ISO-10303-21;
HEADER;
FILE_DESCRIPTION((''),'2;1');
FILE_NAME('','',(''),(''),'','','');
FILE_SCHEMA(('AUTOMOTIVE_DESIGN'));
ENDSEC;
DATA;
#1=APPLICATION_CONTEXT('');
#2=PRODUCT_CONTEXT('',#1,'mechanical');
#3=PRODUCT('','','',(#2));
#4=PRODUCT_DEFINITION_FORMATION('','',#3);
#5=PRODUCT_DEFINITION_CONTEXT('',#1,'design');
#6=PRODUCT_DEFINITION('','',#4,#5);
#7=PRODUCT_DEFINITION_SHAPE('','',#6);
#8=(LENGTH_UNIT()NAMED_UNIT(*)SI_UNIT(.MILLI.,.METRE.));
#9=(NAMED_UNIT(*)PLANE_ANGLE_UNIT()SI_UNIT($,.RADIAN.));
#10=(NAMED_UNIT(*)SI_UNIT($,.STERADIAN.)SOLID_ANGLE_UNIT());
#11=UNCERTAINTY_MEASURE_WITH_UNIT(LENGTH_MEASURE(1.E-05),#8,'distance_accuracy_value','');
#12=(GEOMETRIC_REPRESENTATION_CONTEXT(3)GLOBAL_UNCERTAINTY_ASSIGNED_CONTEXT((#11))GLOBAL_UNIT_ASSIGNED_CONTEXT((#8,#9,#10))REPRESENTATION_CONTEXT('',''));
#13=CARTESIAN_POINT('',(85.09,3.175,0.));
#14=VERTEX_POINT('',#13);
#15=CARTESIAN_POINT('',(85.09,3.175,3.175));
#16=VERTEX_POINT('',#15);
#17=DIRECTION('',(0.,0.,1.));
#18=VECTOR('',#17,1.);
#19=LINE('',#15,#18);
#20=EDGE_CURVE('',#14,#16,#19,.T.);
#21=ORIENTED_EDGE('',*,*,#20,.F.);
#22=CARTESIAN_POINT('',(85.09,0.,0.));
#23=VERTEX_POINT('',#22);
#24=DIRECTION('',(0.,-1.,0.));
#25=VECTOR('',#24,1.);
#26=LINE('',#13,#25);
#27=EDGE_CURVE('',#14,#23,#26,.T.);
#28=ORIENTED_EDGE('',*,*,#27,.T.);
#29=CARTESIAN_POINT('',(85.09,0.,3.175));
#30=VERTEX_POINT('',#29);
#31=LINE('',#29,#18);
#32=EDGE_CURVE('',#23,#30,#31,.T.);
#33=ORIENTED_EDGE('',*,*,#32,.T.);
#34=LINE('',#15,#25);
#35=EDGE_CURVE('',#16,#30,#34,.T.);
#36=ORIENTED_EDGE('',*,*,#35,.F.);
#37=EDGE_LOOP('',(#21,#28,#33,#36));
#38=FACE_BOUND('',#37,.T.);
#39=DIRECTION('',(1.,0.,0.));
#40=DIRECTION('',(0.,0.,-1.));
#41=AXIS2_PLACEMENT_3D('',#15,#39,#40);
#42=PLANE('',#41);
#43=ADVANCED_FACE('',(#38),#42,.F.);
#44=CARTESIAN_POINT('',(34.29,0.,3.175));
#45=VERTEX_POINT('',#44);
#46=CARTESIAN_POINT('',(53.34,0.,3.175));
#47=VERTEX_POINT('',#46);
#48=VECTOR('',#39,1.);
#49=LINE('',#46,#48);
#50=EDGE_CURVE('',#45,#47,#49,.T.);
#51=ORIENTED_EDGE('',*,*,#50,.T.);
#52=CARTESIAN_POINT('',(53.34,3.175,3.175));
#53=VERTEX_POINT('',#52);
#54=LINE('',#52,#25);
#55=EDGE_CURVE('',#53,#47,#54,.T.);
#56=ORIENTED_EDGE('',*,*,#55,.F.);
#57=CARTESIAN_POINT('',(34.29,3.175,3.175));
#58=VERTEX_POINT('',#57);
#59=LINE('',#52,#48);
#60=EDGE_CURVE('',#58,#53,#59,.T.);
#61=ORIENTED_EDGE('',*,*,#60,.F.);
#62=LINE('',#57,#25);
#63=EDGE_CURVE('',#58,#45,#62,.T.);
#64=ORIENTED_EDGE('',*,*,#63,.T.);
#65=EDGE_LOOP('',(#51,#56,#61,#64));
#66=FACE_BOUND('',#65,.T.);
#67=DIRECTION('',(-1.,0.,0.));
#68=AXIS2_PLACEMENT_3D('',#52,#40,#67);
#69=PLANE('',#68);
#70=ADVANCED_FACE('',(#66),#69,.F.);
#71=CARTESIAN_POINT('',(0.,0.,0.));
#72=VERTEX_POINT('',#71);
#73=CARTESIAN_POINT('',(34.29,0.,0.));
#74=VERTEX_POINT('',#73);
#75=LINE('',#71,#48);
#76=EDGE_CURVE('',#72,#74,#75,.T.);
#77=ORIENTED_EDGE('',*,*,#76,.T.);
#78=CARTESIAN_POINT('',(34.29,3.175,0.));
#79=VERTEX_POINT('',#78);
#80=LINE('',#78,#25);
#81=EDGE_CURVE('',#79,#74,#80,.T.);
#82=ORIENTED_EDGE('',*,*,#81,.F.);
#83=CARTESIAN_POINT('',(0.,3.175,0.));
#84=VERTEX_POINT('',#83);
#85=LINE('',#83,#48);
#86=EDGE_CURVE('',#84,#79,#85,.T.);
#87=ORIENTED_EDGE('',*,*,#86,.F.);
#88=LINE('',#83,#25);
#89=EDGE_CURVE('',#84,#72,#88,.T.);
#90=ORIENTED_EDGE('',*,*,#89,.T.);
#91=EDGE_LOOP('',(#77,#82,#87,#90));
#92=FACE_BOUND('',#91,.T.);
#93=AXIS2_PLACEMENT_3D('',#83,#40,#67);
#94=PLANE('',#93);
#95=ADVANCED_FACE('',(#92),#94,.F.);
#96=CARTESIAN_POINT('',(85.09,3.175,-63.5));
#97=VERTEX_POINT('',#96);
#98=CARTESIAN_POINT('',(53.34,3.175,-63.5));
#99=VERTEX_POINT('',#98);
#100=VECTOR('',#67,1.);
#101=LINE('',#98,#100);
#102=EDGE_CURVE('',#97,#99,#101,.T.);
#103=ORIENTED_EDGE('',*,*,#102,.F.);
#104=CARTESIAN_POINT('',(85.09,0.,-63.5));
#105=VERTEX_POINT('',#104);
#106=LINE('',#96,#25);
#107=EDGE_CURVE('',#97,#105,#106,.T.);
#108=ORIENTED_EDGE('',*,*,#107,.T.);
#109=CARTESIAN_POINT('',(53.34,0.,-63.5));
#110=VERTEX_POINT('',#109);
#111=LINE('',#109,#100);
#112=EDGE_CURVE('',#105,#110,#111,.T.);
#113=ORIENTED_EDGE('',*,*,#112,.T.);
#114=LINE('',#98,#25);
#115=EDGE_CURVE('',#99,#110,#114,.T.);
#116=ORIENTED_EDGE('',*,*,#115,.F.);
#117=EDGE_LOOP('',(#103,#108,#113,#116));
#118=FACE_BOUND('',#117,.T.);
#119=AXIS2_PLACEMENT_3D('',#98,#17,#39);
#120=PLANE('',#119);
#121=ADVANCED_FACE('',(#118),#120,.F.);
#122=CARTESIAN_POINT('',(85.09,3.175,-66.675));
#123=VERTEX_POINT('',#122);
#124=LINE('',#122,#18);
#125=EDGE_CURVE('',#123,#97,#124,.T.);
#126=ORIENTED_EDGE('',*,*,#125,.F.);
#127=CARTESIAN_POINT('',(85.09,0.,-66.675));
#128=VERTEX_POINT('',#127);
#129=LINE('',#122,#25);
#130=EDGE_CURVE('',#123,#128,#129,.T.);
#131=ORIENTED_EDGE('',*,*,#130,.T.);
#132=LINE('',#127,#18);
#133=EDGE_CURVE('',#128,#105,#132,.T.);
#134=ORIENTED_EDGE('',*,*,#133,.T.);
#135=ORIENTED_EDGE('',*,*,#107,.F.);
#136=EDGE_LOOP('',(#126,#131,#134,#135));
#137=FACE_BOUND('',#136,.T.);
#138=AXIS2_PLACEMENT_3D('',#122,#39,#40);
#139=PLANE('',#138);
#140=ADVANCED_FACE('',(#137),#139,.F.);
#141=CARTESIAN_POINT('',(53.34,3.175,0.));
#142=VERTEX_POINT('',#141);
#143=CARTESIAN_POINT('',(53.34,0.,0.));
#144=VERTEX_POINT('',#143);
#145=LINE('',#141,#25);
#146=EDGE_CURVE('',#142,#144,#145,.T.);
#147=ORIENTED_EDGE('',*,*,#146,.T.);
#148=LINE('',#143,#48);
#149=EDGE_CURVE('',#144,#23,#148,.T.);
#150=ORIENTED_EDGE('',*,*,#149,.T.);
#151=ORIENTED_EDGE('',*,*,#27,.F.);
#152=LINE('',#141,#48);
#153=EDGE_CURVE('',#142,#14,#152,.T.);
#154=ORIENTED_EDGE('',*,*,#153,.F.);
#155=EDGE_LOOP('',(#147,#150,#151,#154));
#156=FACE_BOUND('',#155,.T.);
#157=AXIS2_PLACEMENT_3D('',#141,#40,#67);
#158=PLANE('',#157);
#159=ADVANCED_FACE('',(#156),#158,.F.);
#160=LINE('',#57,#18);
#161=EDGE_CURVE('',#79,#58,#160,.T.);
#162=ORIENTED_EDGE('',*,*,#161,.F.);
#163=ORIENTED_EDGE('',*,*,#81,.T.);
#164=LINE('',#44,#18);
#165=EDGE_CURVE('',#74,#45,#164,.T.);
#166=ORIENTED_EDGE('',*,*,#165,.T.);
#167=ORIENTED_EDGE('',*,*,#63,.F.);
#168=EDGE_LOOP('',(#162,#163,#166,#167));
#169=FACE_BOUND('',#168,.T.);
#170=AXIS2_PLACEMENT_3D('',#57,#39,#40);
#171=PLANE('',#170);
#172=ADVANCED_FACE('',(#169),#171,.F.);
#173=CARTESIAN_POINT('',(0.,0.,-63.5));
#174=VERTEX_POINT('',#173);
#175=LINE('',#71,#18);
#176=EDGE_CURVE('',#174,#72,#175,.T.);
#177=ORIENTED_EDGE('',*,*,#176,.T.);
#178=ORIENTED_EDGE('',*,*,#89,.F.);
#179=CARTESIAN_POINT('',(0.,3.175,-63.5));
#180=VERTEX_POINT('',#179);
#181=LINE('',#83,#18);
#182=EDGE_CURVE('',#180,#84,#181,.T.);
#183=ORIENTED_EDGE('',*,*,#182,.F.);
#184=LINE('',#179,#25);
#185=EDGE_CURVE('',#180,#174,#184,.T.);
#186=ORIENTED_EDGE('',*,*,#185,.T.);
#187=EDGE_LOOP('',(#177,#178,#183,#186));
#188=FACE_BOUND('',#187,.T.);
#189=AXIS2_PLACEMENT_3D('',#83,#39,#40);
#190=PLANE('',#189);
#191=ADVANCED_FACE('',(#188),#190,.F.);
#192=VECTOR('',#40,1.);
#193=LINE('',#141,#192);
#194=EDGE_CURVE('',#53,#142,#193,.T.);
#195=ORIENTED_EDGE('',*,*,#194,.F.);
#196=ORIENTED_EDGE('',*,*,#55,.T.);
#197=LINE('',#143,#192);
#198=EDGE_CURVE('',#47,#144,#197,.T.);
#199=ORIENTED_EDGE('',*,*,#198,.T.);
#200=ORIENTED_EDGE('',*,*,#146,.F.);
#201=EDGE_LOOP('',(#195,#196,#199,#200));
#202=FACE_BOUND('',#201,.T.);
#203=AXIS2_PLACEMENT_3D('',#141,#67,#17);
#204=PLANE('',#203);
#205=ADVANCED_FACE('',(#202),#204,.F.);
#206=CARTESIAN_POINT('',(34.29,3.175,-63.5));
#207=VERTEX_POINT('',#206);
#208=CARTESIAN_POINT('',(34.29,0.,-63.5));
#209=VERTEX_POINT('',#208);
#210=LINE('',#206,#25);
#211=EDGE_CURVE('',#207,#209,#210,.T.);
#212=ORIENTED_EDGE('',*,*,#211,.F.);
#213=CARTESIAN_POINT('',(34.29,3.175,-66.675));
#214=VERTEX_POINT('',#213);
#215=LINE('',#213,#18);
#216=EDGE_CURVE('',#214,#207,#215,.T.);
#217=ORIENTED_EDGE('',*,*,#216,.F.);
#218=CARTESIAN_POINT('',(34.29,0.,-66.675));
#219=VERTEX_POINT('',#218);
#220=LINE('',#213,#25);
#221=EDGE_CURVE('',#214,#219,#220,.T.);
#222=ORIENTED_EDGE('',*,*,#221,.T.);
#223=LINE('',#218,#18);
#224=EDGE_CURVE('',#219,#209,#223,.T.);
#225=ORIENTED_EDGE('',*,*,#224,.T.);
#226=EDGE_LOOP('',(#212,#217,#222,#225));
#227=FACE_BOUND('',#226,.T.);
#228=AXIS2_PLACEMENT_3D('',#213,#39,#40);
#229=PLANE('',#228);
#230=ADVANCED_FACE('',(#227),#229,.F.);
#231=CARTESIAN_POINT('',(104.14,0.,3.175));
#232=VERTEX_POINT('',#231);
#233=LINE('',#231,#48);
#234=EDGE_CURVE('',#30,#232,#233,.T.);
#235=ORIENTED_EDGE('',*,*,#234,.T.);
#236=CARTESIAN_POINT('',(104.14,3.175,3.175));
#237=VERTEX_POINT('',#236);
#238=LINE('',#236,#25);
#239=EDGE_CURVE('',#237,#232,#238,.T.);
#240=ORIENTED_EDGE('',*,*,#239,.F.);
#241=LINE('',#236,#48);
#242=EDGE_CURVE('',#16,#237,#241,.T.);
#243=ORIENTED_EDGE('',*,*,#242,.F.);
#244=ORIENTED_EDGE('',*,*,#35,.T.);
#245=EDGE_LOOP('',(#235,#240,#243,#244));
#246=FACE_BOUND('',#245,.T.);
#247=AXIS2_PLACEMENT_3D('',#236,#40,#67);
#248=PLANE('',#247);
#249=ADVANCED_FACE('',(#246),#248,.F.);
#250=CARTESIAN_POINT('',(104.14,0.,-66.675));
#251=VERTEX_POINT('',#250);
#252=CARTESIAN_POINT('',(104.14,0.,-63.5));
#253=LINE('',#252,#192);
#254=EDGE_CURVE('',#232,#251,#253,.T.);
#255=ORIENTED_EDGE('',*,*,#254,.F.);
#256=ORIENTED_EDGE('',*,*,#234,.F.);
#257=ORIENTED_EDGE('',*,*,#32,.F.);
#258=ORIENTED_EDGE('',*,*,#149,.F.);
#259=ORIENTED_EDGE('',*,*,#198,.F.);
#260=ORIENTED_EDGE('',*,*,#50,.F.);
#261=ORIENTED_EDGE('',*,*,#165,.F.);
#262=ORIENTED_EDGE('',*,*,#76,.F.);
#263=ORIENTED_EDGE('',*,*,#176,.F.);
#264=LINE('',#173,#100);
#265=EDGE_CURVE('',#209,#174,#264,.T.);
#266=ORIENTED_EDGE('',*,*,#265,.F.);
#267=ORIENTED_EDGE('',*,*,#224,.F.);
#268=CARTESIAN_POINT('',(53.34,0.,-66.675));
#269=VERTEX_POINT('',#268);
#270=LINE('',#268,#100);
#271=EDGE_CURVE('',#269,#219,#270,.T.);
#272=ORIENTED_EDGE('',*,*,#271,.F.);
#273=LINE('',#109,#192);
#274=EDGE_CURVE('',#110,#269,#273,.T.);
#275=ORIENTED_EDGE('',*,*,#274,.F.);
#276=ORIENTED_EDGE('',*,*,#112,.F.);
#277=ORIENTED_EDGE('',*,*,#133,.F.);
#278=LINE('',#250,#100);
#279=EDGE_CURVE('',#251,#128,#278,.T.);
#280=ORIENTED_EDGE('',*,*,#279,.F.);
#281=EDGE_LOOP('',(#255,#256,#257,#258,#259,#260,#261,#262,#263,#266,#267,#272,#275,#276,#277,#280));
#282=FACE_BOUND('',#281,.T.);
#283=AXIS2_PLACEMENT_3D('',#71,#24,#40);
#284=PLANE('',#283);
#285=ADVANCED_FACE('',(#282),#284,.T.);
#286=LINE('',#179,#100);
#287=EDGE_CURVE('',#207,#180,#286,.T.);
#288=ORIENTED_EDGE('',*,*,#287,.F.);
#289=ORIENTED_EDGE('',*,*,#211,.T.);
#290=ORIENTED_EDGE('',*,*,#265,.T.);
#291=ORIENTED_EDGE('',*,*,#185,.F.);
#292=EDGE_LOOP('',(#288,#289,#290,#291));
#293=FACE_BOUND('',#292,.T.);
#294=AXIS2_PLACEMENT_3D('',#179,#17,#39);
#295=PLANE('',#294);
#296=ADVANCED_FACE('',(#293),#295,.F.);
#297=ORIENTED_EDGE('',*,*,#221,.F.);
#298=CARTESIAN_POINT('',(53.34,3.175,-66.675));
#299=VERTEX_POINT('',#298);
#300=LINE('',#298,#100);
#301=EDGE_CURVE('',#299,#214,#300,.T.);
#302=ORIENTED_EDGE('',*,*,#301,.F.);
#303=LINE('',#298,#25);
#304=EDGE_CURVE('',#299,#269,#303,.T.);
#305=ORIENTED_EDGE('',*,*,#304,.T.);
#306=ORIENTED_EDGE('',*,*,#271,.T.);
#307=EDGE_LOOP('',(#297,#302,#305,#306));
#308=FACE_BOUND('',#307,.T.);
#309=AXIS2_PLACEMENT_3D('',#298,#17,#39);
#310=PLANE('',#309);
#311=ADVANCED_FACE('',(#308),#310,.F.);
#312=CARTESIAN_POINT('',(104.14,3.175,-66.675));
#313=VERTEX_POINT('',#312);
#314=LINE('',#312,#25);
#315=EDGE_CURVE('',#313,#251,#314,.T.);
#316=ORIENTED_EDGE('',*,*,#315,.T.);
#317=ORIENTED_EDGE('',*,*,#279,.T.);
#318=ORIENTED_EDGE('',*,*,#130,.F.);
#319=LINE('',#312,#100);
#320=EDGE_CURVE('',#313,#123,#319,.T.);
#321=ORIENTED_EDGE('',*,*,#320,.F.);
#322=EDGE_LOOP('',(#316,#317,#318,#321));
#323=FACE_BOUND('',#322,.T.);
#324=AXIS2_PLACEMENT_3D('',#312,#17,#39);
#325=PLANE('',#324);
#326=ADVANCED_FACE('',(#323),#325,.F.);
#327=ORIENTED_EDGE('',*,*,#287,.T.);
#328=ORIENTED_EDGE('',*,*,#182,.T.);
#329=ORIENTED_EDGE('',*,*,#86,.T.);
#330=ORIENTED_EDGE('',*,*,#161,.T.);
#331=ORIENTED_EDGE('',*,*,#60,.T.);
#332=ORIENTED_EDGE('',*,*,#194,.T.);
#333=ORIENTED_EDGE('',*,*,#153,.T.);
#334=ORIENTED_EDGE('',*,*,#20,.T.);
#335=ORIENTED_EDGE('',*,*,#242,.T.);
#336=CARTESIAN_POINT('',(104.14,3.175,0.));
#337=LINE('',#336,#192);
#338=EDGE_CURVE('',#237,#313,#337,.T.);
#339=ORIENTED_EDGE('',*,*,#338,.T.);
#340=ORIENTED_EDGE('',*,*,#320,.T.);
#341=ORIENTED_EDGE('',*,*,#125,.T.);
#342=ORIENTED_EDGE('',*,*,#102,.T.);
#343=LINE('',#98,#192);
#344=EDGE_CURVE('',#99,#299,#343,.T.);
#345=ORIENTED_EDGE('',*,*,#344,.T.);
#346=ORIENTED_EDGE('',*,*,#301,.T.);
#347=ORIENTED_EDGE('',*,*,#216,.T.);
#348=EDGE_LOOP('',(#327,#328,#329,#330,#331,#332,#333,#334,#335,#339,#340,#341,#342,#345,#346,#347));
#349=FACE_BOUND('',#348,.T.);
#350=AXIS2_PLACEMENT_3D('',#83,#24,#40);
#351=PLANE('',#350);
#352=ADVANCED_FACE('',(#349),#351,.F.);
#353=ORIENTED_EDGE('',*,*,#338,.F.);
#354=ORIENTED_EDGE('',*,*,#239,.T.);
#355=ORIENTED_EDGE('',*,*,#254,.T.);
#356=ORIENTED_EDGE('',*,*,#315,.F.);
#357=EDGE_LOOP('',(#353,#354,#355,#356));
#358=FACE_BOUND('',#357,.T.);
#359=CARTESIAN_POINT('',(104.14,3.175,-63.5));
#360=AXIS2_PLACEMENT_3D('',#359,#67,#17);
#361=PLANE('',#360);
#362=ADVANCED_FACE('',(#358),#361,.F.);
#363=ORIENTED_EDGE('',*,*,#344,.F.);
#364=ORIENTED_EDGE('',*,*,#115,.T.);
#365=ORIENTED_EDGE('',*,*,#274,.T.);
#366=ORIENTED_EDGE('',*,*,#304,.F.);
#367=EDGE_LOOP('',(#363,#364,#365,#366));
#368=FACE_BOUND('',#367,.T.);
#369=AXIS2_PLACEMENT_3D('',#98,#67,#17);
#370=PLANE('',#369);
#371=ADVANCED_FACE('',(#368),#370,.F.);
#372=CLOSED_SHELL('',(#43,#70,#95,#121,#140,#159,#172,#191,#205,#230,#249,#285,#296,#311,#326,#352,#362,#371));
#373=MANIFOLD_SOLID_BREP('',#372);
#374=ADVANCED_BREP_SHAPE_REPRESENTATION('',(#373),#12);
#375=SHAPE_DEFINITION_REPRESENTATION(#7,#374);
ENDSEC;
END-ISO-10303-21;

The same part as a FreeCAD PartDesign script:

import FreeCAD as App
import Part
import Sketcher
from FreeCAD import Vector
Q = App.Units.Quantity

doc = App.newDocument("Part")
body = doc.addObject("PartDesign::Body", "Body")

sketch1 = body.newObject("Sketcher::SketchObject", "Sketch")
sketch1.AttachmentSupport = (doc.getObject("XZ_Plane"), [""])
sketch1.MapMode = "FlatFace"
sketch1.addGeometry(Part.LineSegment(Vector(104.14, -66.675, 0), Vector(85.09, -66.675, 0)), False)
sketch1.addGeometry(Part.LineSegment(Vector(85.09, -66.675, 0), Vector(85.09, -63.5, 0)), False)
sketch1.addGeometry(Part.LineSegment(Vector(85.09, -63.5, 0), Vector(53.34, -63.5, 0)), False)
sketch1.addGeometry(Part.LineSegment(Vector(53.34, -63.5, 0), Vector(53.34, -66.675, 0)), False)
sketch1.addGeometry(Part.LineSegment(Vector(53.34, -66.675, 0), Vector(34.29, -66.675, 0)), False)
sketch1.addGeometry(Part.LineSegment(Vector(34.29, -66.675, 0), Vector(34.29, -63.5, 0)), False)
sketch1.addGeometry(Part.LineSegment(Vector(34.29, -63.5, 0), Vector(0, -63.5, 0)), False)
sketch1.addGeometry(Part.LineSegment(Vector(0, -63.5, 0), Vector(0, 0, 0)), False)
sketch1.addGeometry(Part.LineSegment(Vector(0, 0, 0), Vector(34.29, 0, 0)), False)
sketch1.addGeometry(Part.LineSegment(Vector(34.29, 0, 0), Vector(34.29, 3.175, 0)), False)
sketch1.addGeometry(Part.LineSegment(Vector(34.29, 3.175, 0), Vector(53.34, 3.175, 0)), False)
sketch1.addGeometry(Part.LineSegment(Vector(53.34, 3.175, 0), Vector(53.34, 0, 0)), False)
sketch1.addGeometry(Part.LineSegment(Vector(53.34, 0, 0), Vector(85.09, 0, 0)), False)
sketch1.addGeometry(Part.LineSegment(Vector(85.09, 0, 0), Vector(85.09, 3.175, 0)), False)
sketch1.addGeometry(Part.LineSegment(Vector(85.09, 3.175, 0), Vector(104.14, 3.175, 0)), False)
sketch1.addGeometry(Part.LineSegment(Vector(104.14, 3.175, 0), Vector(104.14, -66.675, 0)), False)
sketch1.addConstraint(Sketcher.Constraint("Coincident", 0, 2, 1, 1))
sketch1.addConstraint(Sketcher.Constraint("Coincident", 1, 2, 2, 1))
sketch1.addConstraint(Sketcher.Constraint("Coincident", 2, 2, 3, 1))
sketch1.addConstraint(Sketcher.Constraint("Coincident", 3, 2, 4, 1))
sketch1.addConstraint(Sketcher.Constraint("Coincident", 4, 2, 5, 1))
sketch1.addConstraint(Sketcher.Constraint("Coincident", 5, 2, 6, 1))
sketch1.addConstraint(Sketcher.Constraint("Coincident", 6, 2, 7, 1))
sketch1.addConstraint(Sketcher.Constraint("Coincident", 7, 2, 8, 1))
sketch1.addConstraint(Sketcher.Constraint("Coincident", 8, 2, 9, 1))
sketch1.addConstraint(Sketcher.Constraint("Coincident", 9, 2, 10, 1))
sketch1.addConstraint(Sketcher.Constraint("Coincident", 10, 2, 11, 1))
sketch1.addConstraint(Sketcher.Constraint("Coincident", 11, 2, 12, 1))
sketch1.addConstraint(Sketcher.Constraint("Coincident", 12, 2, 13, 1))
sketch1.addConstraint(Sketcher.Constraint("Coincident", 13, 2, 14, 1))
sketch1.addConstraint(Sketcher.Constraint("Coincident", 14, 2, 15, 1))
sketch1.addConstraint(Sketcher.Constraint("Coincident", 15, 2, 0, 1))
sketch1.addConstraint(Sketcher.Constraint("Horizontal", 0))
sketch1.addConstraint(Sketcher.Constraint("Vertical", 1))
sketch1.addConstraint(Sketcher.Constraint("Horizontal", 2))
sketch1.addConstraint(Sketcher.Constraint("Vertical", 3))
sketch1.addConstraint(Sketcher.Constraint("Horizontal", 4))
sketch1.addConstraint(Sketcher.Constraint("Vertical", 5))
sketch1.addConstraint(Sketcher.Constraint("Horizontal", 6))
sketch1.addConstraint(Sketcher.Constraint("Vertical", 7))
sketch1.addConstraint(Sketcher.Constraint("Horizontal", 8))
sketch1.addConstraint(Sketcher.Constraint("Vertical", 9))
sketch1.addConstraint(Sketcher.Constraint("Horizontal", 10))
sketch1.addConstraint(Sketcher.Constraint("Vertical", 11))
sketch1.addConstraint(Sketcher.Constraint("Horizontal", 12))
sketch1.addConstraint(Sketcher.Constraint("Vertical", 13))
sketch1.addConstraint(Sketcher.Constraint("Horizontal", 14))
sketch1.addConstraint(Sketcher.Constraint("Vertical", 15))
sketch1.addConstraint(Sketcher.Constraint("Coincident", 7, 2, -1, 1))
sketch1.addConstraint(Sketcher.Constraint("PointOnObject", 11, 2, -1))
sketch1.addConstraint(Sketcher.Constraint("Horizontal", 0, 2, 3, 2))
sketch1.addConstraint(Sketcher.Constraint("Horizontal", 2, 2, 5, 2))
sketch1.addConstraint(Sketcher.Constraint("Horizontal", 10, 2, 13, 2))
sketch1.addConstraint(Sketcher.Constraint("Vertical", 5, 2, 8, 2))
sketch1.addConstraint(Sketcher.Constraint("Vertical", 3, 2, 10, 2))
sketch1.addConstraint(Sketcher.Constraint("Vertical", 1, 2, 12, 2))
sketch1.addConstraint(Sketcher.Constraint("Equal", 0, 4))
sketch1.addConstraint(Sketcher.Constraint("Equal", 5, 9))
sketch1.addConstraint(Sketcher.Constraint("DistanceY", 7, 1, 7, 2, Q("2.5 in")))
sketch1.addConstraint(Sketcher.Constraint("DistanceX", 4, 2, 0, 2, Q("2 in")))
sketch1.addConstraint(Sketcher.Constraint("DistanceX", 0, 2, 0, 1, Q("0.75 in")))
sketch1.addConstraint(Sketcher.Constraint("DistanceX", 6, 2, 6, 1, Q("1.35 in")))
sketch1.addConstraint(Sketcher.Constraint("DistanceY", 15, 2, 15, 1, Q("2.75 in")))
pad1 = body.newObject("PartDesign::Pad", "Pad")
pad1.Profile = sketch1
pad1.Length = Q("0.125 in")
pad1.Reversed = True

doc.recompute()
